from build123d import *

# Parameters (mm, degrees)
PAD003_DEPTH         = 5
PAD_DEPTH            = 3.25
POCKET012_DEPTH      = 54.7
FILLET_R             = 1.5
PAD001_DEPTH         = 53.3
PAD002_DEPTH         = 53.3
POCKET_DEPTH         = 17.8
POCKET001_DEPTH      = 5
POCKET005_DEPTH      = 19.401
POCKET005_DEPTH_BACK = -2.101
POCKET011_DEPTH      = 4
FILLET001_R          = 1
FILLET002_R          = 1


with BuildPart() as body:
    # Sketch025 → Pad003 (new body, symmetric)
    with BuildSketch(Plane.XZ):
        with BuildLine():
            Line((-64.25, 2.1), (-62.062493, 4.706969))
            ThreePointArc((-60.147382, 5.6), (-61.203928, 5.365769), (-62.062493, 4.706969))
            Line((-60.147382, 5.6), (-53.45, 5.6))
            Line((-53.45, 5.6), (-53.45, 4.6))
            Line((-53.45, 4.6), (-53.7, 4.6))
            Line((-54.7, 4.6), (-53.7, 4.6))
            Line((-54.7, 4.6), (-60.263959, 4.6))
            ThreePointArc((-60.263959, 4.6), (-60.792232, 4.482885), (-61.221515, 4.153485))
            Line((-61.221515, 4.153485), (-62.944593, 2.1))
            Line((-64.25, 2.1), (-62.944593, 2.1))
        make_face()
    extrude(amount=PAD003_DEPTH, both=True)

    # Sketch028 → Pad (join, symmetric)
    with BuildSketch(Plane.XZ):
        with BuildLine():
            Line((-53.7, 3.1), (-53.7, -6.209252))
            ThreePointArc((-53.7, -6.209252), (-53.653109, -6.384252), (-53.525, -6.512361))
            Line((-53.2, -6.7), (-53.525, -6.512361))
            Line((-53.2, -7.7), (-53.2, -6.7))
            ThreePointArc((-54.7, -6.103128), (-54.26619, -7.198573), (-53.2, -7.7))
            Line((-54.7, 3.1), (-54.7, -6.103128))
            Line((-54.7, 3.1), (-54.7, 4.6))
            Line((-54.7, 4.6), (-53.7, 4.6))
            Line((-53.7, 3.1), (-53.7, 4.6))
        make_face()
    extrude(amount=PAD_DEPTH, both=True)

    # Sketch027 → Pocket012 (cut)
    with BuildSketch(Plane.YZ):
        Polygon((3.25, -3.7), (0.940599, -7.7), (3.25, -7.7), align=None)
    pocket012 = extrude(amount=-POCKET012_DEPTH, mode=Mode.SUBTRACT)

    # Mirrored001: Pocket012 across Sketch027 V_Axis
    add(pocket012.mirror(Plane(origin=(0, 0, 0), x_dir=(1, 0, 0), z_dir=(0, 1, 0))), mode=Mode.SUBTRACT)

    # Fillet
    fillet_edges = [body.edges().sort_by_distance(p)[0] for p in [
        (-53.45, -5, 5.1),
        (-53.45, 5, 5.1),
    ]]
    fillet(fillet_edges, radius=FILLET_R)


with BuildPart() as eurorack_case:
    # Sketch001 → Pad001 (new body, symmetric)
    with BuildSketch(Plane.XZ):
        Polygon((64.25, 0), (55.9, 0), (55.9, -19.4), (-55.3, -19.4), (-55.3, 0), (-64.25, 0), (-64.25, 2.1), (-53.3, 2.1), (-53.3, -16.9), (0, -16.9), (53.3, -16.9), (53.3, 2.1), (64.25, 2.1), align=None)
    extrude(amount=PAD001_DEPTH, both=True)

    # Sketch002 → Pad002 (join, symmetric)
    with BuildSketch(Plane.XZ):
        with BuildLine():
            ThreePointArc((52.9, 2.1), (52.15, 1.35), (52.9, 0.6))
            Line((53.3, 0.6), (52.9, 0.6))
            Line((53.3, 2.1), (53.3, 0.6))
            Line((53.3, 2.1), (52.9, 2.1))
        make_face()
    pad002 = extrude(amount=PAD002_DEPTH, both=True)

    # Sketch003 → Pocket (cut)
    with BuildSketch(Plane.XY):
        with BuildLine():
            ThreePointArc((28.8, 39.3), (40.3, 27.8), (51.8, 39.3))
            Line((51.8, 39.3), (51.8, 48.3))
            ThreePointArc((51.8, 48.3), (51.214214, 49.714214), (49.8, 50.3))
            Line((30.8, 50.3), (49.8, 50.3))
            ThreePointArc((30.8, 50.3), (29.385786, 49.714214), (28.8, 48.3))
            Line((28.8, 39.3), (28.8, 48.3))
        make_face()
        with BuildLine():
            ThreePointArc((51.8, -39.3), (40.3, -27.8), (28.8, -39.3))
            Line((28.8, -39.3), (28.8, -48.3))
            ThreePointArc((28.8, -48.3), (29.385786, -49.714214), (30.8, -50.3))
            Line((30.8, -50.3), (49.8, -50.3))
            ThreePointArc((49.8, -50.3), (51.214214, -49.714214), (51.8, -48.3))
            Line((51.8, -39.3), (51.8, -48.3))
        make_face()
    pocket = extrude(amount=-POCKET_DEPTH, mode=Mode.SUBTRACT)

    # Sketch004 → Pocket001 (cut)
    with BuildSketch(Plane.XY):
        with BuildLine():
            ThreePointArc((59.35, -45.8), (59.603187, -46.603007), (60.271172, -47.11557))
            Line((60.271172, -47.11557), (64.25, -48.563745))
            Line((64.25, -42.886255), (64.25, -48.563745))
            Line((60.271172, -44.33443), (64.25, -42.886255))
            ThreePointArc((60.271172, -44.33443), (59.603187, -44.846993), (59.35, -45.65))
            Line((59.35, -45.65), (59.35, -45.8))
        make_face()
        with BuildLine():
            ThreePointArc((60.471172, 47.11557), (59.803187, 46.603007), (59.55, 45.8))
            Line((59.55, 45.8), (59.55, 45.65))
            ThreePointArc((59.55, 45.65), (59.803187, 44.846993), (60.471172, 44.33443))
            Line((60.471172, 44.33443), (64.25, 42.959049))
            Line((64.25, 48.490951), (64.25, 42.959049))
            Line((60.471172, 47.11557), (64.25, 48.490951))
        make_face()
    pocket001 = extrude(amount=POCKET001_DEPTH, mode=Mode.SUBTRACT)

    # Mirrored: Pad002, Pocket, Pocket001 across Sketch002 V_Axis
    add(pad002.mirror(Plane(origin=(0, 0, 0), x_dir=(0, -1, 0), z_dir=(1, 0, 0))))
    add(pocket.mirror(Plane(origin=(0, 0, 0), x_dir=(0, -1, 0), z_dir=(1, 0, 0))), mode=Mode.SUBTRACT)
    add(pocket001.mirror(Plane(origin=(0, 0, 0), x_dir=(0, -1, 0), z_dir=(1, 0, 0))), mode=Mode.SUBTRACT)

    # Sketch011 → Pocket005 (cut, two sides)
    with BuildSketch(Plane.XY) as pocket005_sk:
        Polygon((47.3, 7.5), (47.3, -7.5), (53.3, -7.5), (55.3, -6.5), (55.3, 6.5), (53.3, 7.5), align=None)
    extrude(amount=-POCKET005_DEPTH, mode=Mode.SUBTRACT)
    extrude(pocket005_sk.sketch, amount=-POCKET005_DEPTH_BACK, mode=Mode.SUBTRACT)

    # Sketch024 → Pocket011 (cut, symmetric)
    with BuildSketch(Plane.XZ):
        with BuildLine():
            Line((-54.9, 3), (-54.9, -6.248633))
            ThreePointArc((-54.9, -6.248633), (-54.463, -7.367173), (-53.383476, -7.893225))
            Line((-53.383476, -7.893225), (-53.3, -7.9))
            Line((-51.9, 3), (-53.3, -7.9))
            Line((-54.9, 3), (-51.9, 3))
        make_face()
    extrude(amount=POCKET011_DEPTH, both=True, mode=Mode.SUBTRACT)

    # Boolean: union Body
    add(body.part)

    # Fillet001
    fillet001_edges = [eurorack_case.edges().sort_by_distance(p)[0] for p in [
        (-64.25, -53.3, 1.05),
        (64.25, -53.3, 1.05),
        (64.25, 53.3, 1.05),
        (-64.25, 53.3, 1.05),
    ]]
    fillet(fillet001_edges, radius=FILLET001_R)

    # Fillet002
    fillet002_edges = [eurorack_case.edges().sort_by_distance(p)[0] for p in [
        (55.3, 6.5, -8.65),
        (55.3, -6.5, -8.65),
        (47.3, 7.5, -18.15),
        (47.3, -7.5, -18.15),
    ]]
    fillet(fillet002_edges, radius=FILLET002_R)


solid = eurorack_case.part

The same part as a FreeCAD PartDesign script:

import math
import FreeCAD as App
import Part
import Sketcher
Q = App.Units.Quantity


def edges_at(feature, points):
    """Names of the edges that pass closest to the given points."""
    edges = feature.Shape.Edges
    near = lambda p: min(range(len(edges)), key=lambda i: edges[i].distToShape(Part.Vertex(*p))[0])
    return sorted({f"Edge{near(p) + 1}" for p in points})


def add_polygon(sketch, points):
    """Adds a closed chain of lines whose ends are joined by coincident constraints."""
    first, n = sketch.GeometryCount, len(points)
    for a, b in zip(points, points[1:] + points[:1]):
        sketch.addGeometry(Part.LineSegment(App.Vector(*a, 0), App.Vector(*b, 0)), False)
    for i in range(n):
        sketch.addConstraint(Sketcher.Constraint("Coincident", first + i, 2, first + (i + 1) % n, 1))

doc = App.newDocument("Part")
body = doc.addObject("PartDesign::Body", "Body")

sketch1 = doc.addObject("Sketcher::SketchObject", "Sketch")
body.addObject(sketch1)
sketch1.AttachmentSupport = (doc.XZ_Plane, [""])
sketch1.MapMode = "FlatFace"
sketch1.addGeometry([
    Part.LineSegment(App.Vector(-62.1, 4.7, 0), App.Vector(-64.2, 2.1, 0)),
    Part.LineSegment(App.Vector(-64.2, 2.1, 0), App.Vector(-62.9, 2.1, 0)),
    Part.LineSegment(App.Vector(-62.9, 2.1, 0), App.Vector(-61.2, 4.2, 0)),
    Part.ArcOfCircle(Part.Circle(App.Vector(-60.3, 3.3, 0), App.Vector(0, 0, 1), 1.3), math.radians(90), math.radians(140)),
    Part.LineSegment(App.Vector(-60.3, 4.6, 0), App.Vector(-53.5, 4.6, 0)),
    Part.LineSegment(App.Vector(-53.5, 4.6, 0), App.Vector(-53.5, 5.6, 0)),
    Part.LineSegment(App.Vector(-53.5, 5.6, 0), App.Vector(-60.1, 5.6, 0)),
    Part.ArcOfCircle(Part.Circle(App.Vector(-60.1, 3.1, 0), App.Vector(0, 0, 1), 2.5), math.radians(90), math.radians(140)),
], False)
sketch1.addConstraint([
    Sketcher.Constraint("Coincident", 0, 2, 1, 1),
    Sketcher.Constraint("Coincident", 1, 2, 2, 1),
    Sketcher.Constraint("Tangent", 2, 2, 3, 2),
    Sketcher.Constraint("Tangent", 3, 1, 4, 1),
    Sketcher.Constraint("Coincident", 4, 2, 5, 1),
    Sketcher.Constraint("Coincident", 5, 2, 6, 1),
    Sketcher.Constraint("Tangent", 6, 2, 7, 1),
    Sketcher.Constraint("Tangent", 7, 2, 0, 1),
    Sketcher.Constraint("Horizontal", 1),
    Sketcher.Constraint("Horizontal", 4),
    Sketcher.Constraint("Vertical", 5),
    Sketcher.Constraint("Horizontal", 6),
    Sketcher.Constraint("Parallel", 0, 2),
    Sketcher.Constraint("DistanceY", 5, 1, 5, 2, 1.0),
    Sketcher.Constraint("Angle", 0, Q("-130.000004 deg")),
    Sketcher.Constraint("Radius", 3, 1.25),
    Sketcher.Constraint("DistanceY", -1, 1, 0, 2, 2.1),
    Sketcher.Constraint("DistanceY", -1, 1, 3, 1, 4.6),
    Sketcher.Constraint("DistanceX", 0, 2, -1, 1, 64.25),
    Sketcher.Constraint("DistanceX", 4, 2, -1, 1, 53.45),
    Sketcher.Constraint("DistanceY", 7, 3, 3, 3, 0.250002),
    Sketcher.Constraint("DistanceX", 4, 1, 4, 2, 6.813959),
])
pad1 = doc.addObject("PartDesign::Pad", "Pad")
body.addObject(pad1)
pad1.Profile = sketch1
pad1.Length = 10
pad1.Midplane = True

sketch2 = doc.addObject("Sketcher::SketchObject", "Sketch001")
body.addObject(sketch2)
sketch2.AttachmentSupport = (doc.XZ_Plane, [""])
sketch2.MapMode = "FlatFace"
sketch2.addGeometry([
    Part.LineSegment(App.Vector(-53.7, -6.21, 0), App.Vector(-53.7, 4.6, 0)),
    Part.LineSegment(App.Vector(-53.7, 4.6, 0), App.Vector(-54.7, 4.6, 0)),
    Part.LineSegment(App.Vector(-54.7, 4.6, 0), App.Vector(-54.7, -6.1, 0)),
    Part.ArcOfCircle(Part.Circle(App.Vector(-53.1, -6.1, 0), App.Vector(0, 0, 1), 1.6), math.radians(-180), math.radians(-94)),
    Part.LineSegment(App.Vector(-53.2, -7.7, 0), App.Vector(-53.2, -6.7, 0)),
    Part.LineSegment(App.Vector(-53.2, -6.7, 0), App.Vector(-53.52, -6.51, 0)),
    Part.ArcOfCircle(Part.Circle(App.Vector(-53.35, -6.21, 0), App.Vector(0, 0, 1), 0.35), math.radians(180), math.radians(240)),
], False)
sketch2.addConstraint([
    Sketcher.Constraint("Coincident", 0, 2, 1, 1),
    Sketcher.Constraint("Coincident", 1, 2, 2, 1),
    Sketcher.Constraint("Tangent", 2, 2, 3, 1),
    Sketcher.Constraint("Coincident", 3, 2, 4, 1),
    Sketcher.Constraint("Coincident", 4, 2, 5, 1),
    Sketcher.Constraint("Tangent", 5, 2, 6, 2),
    Sketcher.Constraint("Tangent", 6, 1, 0, 1),
    Sketcher.Constraint("Vertical", 0),
    Sketcher.Constraint("Horizontal", 1),
    Sketcher.Constraint("Vertical", 2),
    Sketcher.Constraint("Vertical", 4),
    Sketcher.Constraint("Equal", 1, 4),
    Sketcher.Constraint("Radius", 3, 1.600001),
    Sketcher.Constraint("DistanceX", 1, 2, 1, 1, 1.0),
    Sketcher.Constraint("Radius", 6, 0.35),
    Sketcher.Constraint("DistanceX", 3, 3, -1, 1, 53.099999),
    Sketcher.Constraint("DistanceY", -1, 1, 0, 2, 4.6),
    Sketcher.Constraint("DistanceX", 3, 2, -1, 1, 53.2),
    Sketcher.Constraint("DistanceY", 3, 2, -1, 1, 7.7),
    Sketcher.Constraint("DistanceX", 5, 2, -1, 1, 53.525),
])
pad2 = doc.addObject("PartDesign::Pad", "Pad001")
body.addObject(pad2)
pad2.Profile = sketch2
pad2.Length = 6.5
pad2.Midplane = True

sketch3 = doc.addObject("Sketcher::SketchObject", "Sketch002")
body.addObject(sketch3)
sketch3.AttachmentSupport = (doc.YZ_Plane, [""])
sketch3.MapMode = "FlatFace"
add_polygon(sketch3, [(3.2, -3.7), (0.9, -7.7), (3.2, -7.7)])
sketch3.addConstraint([
    Sketcher.Constraint("Horizontal", 1),
    Sketcher.Constraint("Vertical", 2),
    Sketcher.Constraint("DistanceY", 2, 1, 2, 2, 4.0),
    Sketcher.Constraint("Angle", 0, Q("-119.999999 deg")),
    Sketcher.Constraint("DistanceY", 0, 2, -1, 1, 7.7),
    Sketcher.Constraint("DistanceX", -1, 1, 1, 2, 3.25),
])
pocket1 = doc.addObject("PartDesign::Pocket", "Pocket")
body.addObject(pocket1)
pocket1.Profile = sketch3
pocket1.Length = 54.7
doc.recompute()

mirrored = doc.addObject("PartDesign::Mirrored", "Mirrored")
body.addObject(mirrored)
mirrored.Originals = [pocket1]
mirrored.MirrorPlane = (doc.XZ_Plane, [""])
body.Tip = mirrored
doc.recompute()

fillet = doc.addObject("PartDesign::Fillet", "Fillet")
body.addObject(fillet)
fillet.Base = (mirrored, edges_at(mirrored, [(-53.45, -5, 5.1), (-53.45, 5, 5.1)]))
fillet.Radius = 1.5
body2 = doc.addObject("PartDesign::Body", "Body001")

sketch4 = doc.addObject("Sketcher::SketchObject", "Sketch003")
body2.addObject(sketch4)
sketch4.AttachmentSupport = (doc.getObject("XZ_Plane001"), [""])
sketch4.MapMode = "FlatFace"
add_polygon(sketch4, [(55.9, 0), (64.2, 0), (64.2, 2.1), (53.3, 2.1), (53.3, -16.9), (-53.3, -16.9), (-53.3, 2.1), (-64.2, 2.1), (-64.2, 0), (-55.3, 0), (-55.3, -19.4), (55.9, -19.4)])
sketch4.addConstraint([
    Sketcher.Constraint("Horizontal", 0),
    Sketcher.Constraint("Vertical", 1),
    Sketcher.Constraint("Horizontal", 2),
    Sketcher.Constraint("Vertical", 3),
    Sketcher.Constraint("Horizontal", 4),
    Sketcher.Constraint("Vertical", 5),
    Sketcher.Constraint("Horizontal", 6),
    Sketcher.Constraint("Vertical", 7),
    Sketcher.Constraint("Horizontal", 8),
    Sketcher.Constraint("Vertical", 9),
    Sketcher.Constraint("Horizontal", 10),
    Sketcher.Constraint("Vertical", 11),
    Sketcher.Constraint("Symmetric", 0, 2, 7, 2, -1, 1),
    Sketcher.Constraint("Symmetric", 2, 2, 5, 2, -2),
    Sketcher.Constraint("PointOnObject", 0, 2, -1),
    Sketcher.Constraint("DistanceY", 3, 2, 3, 1, 19.0),
    Sketcher.Constraint("DistanceX", 4, 2, 4, 1, 106.6),
    Sketcher.Constraint("DistanceX", 10, 1, 10, 2, 111.2),
    Sketcher.Constraint("DistanceY", 1, 1, 1, 2, 2.1),
    Sketcher.Constraint("DistanceY", 9, 2, 9, 1, 19.4),
    Sketcher.Constraint("DistanceX", 8, 2, 5, 2, 2.0),
    Sketcher.Constraint("DistanceX", 0, 1, 0, 2, 8.35),
])
pad3 = doc.addObject("PartDesign::Pad", "Pad002")
body2.addObject(pad3)
pad3.Profile = sketch4
pad3.Length = 106.6
pad3.Midplane = True

sketch5 = doc.addObject("Sketcher::SketchObject", "Sketch004")
body2.addObject(sketch5)
sketch5.AttachmentSupport = (doc.getObject("XZ_Plane001"), [""])
sketch5.MapMode = "FlatFace"
sketch5.addGeometry([
    Part.ArcOfCircle(Part.Circle(App.Vector(52.9, 1.35, 0), App.Vector(0, 0, 1), 0.75), math.radians(90), math.radians(270)),
    Part.LineSegment(App.Vector(52.9, 0.6, 0), App.Vector(53.3, 0.6, 0)),
    Part.LineSegment(App.Vector(53.3, 0.6, 0), App.Vector(53.3, 2.1, 0)),
    Part.LineSegment(App.Vector(53.3, 2.1, 0), App.Vector(52.9, 2.1, 0)),
], False)
sketch5.addConstraint([
    Sketcher.Constraint("Tangent", 0, 2, 1, 1),
    Sketcher.Constraint("Coincident", 1, 2, 2, 1),
    Sketcher.Constraint("Coincident", 2, 2, 3, 1),
    Sketcher.Constraint("Tangent", 3, 2, 0, 1),
    Sketcher.Constraint("Horizontal", 1),
    Sketcher.Constraint("Vertical", 2),
    Sketcher.Constraint("Horizontal", 3),
    Sketcher.Constraint("Radius", 0, 0.75),
    Sketcher.Constraint("DistanceX", 1, 1, 1, 2, 0.4),
    Sketcher.Constraint("DistanceX", -1, 1, 0, 3, 52.9),
    Sketcher.Constraint("DistanceY", -1, 1, 0, 2, 0.6),
])
pad4 = doc.addObject("PartDesign::Pad", "Pad003")
body2.addObject(pad4)
pad4.Profile = sketch5
pad4.Length = 106.6
pad4.Midplane = True

sketch6 = doc.addObject("Sketcher::SketchObject", "Sketch005")
body2.addObject(sketch6)
sketch6.AttachmentSupport = (doc.getObject("XY_Plane001"), [""])
sketch6.MapMode = "FlatFace"
sketch6.addGeometry([
    Part.ArcOfCircle(Part.Circle(App.Vector(40.3, 39.3, 0), App.Vector(0, 0, 1), 11.5), math.radians(180), math.radians(360)),
    Part.LineSegment(App.Vector(51.8, 39.3, 0), App.Vector(51.8, 48.3, 0)),
    Part.ArcOfCircle(Part.Circle(App.Vector(49.8, 48.3, 0), App.Vector(0, 0, 1), 2), math.radians(0), math.radians(90)),
    Part.LineSegment(App.Vector(49.8, 50.3, 0), App.Vector(30.8, 50.3, 0)),
    Part.ArcOfCircle(Part.Circle(App.Vector(30.8, 48.3, 0), App.Vector(0, 0, 1), 2), math.radians(90), math.radians(180)),
    Part.LineSegment(App.Vector(28.8, 48.3, 0), App.Vector(28.8, 39.3, 0)),
    Part.ArcOfCircle(Part.Circle(App.Vector(40.3, -39.3, 0), App.Vector(0, 0, 1), 11.5), math.radians(0), math.radians(180)),
    Part.LineSegment(App.Vector(28.8, -39.3, 0), App.Vector(28.8, -48.3, 0)),
    Part.ArcOfCircle(Part.Circle(App.Vector(30.8, -48.3, 0), App.Vector(0, 0, 1), 2), math.radians(180), math.radians(270)),
    Part.LineSegment(App.Vector(30.8, -50.3, 0), App.Vector(49.8, -50.3, 0)),
    Part.ArcOfCircle(Part.Circle(App.Vector(49.8, -48.3, 0), App.Vector(0, 0, 1), 2), math.radians(-90), math.radians(0)),
    Part.LineSegment(App.Vector(51.8, -48.3, 0), App.Vector(51.8, -39.3, 0)),
], False)
sketch6.addConstraint([
    Sketcher.Constraint("Tangent", 0, 2, 1, 1),
    Sketcher.Constraint("Tangent", 1, 2, 2, 1),
    Sketcher.Constraint("Tangent", 2, 2, 3, 1),
    Sketcher.Constraint("Tangent", 3, 2, 4, 1),
    Sketcher.Constraint("Tangent", 4, 2, 5, 1),
    Sketcher.Constraint("Tangent", 5, 2, 0, 1),
    Sketcher.Constraint("Tangent", 6, 2, 7, 1),
    Sketcher.Constraint("Tangent", 7, 2, 8, 1),
    Sketcher.Constraint("Tangent", 8, 2, 9, 1),
    Sketcher.Constraint("Tangent", 9, 2, 10, 1),
    Sketcher.Constraint("Tangent", 10, 2, 11, 1),
    Sketcher.Constraint("Tangent", 11, 2, 6, 1),
    Sketcher.Constraint("Vertical", 1),
    Sketcher.Constraint("Horizontal", 3),
    Sketcher.Constraint("Vertical", 5),
    Sketcher.Constraint("Vertical", 7),
    Sketcher.Constraint("Horizontal", 9),
    Sketcher.Constraint("Vertical", 11),
    Sketcher.Constraint("Equal", 2, 4),
    Sketcher.Constraint("Equal", 0, 6),
    Sketcher.Constraint("Equal", 4, 8),
    Sketcher.Constraint("Equal", 8, 10),
    Sketcher.Constraint("Symmetric", 0, 3, 6, 3, -1),
    Sketcher.Constraint("Equal", 5, 7),
    Sketcher.Constraint("Radius", 2, 1.999999),
    Sketcher.Constraint("Radius", 0, 11.5),
    Sketcher.Constraint("DistanceY", 1, 1, 1, 2, 9.0),
    Sketcher.Constraint("DistanceX", -1, 1, 0, 3, 40.3),
    Sketcher.Constraint("DistanceY", -1, 1, 0, 3, 39.3),
])
pocket2 = doc.addObject("PartDesign::Pocket", "Pocket001")
body2.addObject(pocket2)
pocket2.Profile = sketch6
pocket2.Length = 17.8

sketch7 = doc.addObject("Sketcher::SketchObject", "Sketch006")
body2.addObject(sketch7)
sketch7.AttachmentSupport = (doc.getObject("XY_Plane001"), [""])
sketch7.MapMode = "FlatFace"
sketch7.addGeometry([
    Part.ArcOfCircle(Part.Circle(App.Vector(60.75, -45.8, 0), App.Vector(0, 0, 1), 1.4), math.radians(180), math.radians(250)),
    Part.LineSegment(App.Vector(60.27, -47.12, 0), App.Vector(64.25, -48.56, 0)),
    Part.LineSegment(App.Vector(64.25, -48.56, 0), App.Vector(64.25, -42.89, 0)),
    Part.LineSegment(App.Vector(64.25, -42.89, 0), App.Vector(60.27, -44.33, 0)),
    Part.ArcOfCircle(Part.Circle(App.Vector(60.75, -45.65, 0), App.Vector(0, 0, 1), 1.4), math.radians(110), math.radians(180)),
    Part.LineSegment(App.Vector(59.35, -45.65, 0), App.Vector(59.35, -45.8, 0)),
    Part.ArcOfCircle(Part.Circle(App.Vector(60.95, 45.8, 0), App.Vector(0, 0, 1), 1.4), math.radians(110), math.radians(180)),
    Part.LineSegment(App.Vector(59.55, 45.8, 0), App.Vector(59.55, 45.65, 0)),
    Part.ArcOfCircle(Part.Circle(App.Vector(60.95, 45.65, 0), App.Vector(0, 0, 1), 1.4), math.radians(180), math.radians(250)),
    Part.LineSegment(App.Vector(60.47, 44.33, 0), App.Vector(64.25, 42.96, 0)),
    Part.LineSegment(App.Vector(64.25, 42.96, 0), App.Vector(64.25, 48.49, 0)),
    Part.LineSegment(App.Vector(64.25, 48.49, 0), App.Vector(60.47, 47.12, 0)),
], False)
sketch7.addConstraint([
    Sketcher.Constraint("Tangent", 0, 2, 1, 1),
    Sketcher.Constraint("Coincident", 1, 2, 2, 1),
    Sketcher.Constraint("Coincident", 2, 2, 3, 1),
    Sketcher.Constraint("Tangent", 3, 2, 4, 1),
    Sketcher.Constraint("Tangent", 4, 2, 5, 1),
    Sketcher.Constraint("Tangent", 5, 2, 0, 1),
    Sketcher.Constraint("Tangent", 6, 2, 7, 1),
    Sketcher.Constraint("Tangent", 7, 2, 8, 1),
    Sketcher.Constraint("Tangent", 8, 2, 9, 1),
    Sketcher.Constraint("Coincident", 9, 2, 10, 1),
    Sketcher.Constraint("Coincident", 10, 2, 11, 1),
    Sketcher.Constraint("Tangent", 11, 2, 6, 1),
    Sketcher.Constraint("Vertical", 2),
    Sketcher.Constraint("Vertical", 5),
    Sketcher.Constraint("Vertical", 7),
    Sketcher.Constraint("Vertical", 10),
    Sketcher.Constraint("Equal", 0, 4),
    Sketcher.Constraint("Equal", 4, 6),
    Sketcher.Constraint("Equal", 6, 8),
    Sketcher.Constraint("Parallel", 1, 9),
    Sketcher.Constraint("Parallel", 3, 11),
    Sketcher.Constraint("Vertical", 0, 2, 3, 2),
    Sketcher.Constraint("Vertical", 2, 2, 9, 2),
    Sketcher.Constraint("Equal", 5, 7),
    Sketcher.Constraint("Radius", 0, 1.4),
    Sketcher.Constraint("Angle", 1, Q("-20.000001 deg")),
    Sketcher.Constraint("DistanceY", 5, 2, 5, 1, 0.15),
    Sketcher.Constraint("DistanceY", 0, 3, -1, 1, 45.8),
    Sketcher.Constraint("DistanceY", -1, 1, 6, 3, 45.8),
    Sketcher.Constraint("DistanceX", 4, 3, 6, 3, 0.2),
    Sketcher.Constraint("DistanceX", 0, 3, 1, 2, 3.5),
    Sketcher.Constraint("DistanceX", -1, 1, 0, 3, 60.75),
])
pocket3 = doc.addObject("PartDesign::Pocket", "Pocket002")
body2.addObject(pocket3)
pocket3.Profile = sketch7
pocket3.Length = 5
pocket3.Reversed = True
doc.recompute()

mirrored2 = doc.addObject("PartDesign::Mirrored", "Mirrored001")
body2.addObject(mirrored2)
mirrored2.Originals = [pad4, pocket2, pocket3]
mirrored2.MirrorPlane = (doc.getObject("YZ_Plane001"), [""])
body2.Tip = mirrored2

sketch8 = doc.addObject("Sketcher::SketchObject", "Sketch007")
body2.addObject(sketch8)
sketch8.AttachmentSupport = (doc.getObject("XY_Plane001"), [""])
sketch8.MapMode = "FlatFace"
add_polygon(sketch8, [(47.3, 7.5), (47.3, -7.5), (53.3, -7.5), (55.3, -6.5), (55.3, 6.5), (53.3, 7.5)])
sketch8.addConstraint([
    Sketcher.Constraint("Vertical", 0),
    Sketcher.Constraint("Horizontal", 1),
    Sketcher.Constraint("Vertical", 3),
    Sketcher.Constraint("Horizontal", 5),
    Sketcher.Constraint("Symmetric", 1, 2, 4, 2, -1),
    Sketcher.Constraint("Equal", 2, 4),
    Sketcher.Constraint("DistanceX", 1, 1, 1, 2, 6.0),
    Sketcher.Constraint("DistanceY", 0, 2, 0, 1, 15.0),
    Sketcher.Constraint("DistanceY", 3, 1, 3, 2, 13.0),
    Sketcher.Constraint("DistanceX", 1, 2, 2, 2, 2.0),
    Sketcher.Constraint("DistanceX", -1, 1, 0, 2, 47.3),
])
pocket4 = doc.addObject("PartDesign::Pocket", "Pocket003")
body2.addObject(pocket4)
pocket4.Profile = sketch8
pocket4.Type = "ThroughAll"
pocket4.Midplane = True

sketch9 = doc.addObject("Sketcher::SketchObject", "Sketch008")
body2.addObject(sketch9)
sketch9.AttachmentSupport = (doc.getObject("XZ_Plane001"), [""])
sketch9.MapMode = "FlatFace"
sketch9.addGeometry([
    Part.LineSegment(App.Vector(-54.9, 3, 0), App.Vector(-54.9, -6.25, 0)),
    Part.ArcOfCircle(Part.Circle(App.Vector(-53.25, -6.25, 0), App.Vector(0, 0, 1), 1.65), math.radians(180), math.radians(265)),
    Part.LineSegment(App.Vector(-53.38, -7.89, 0), App.Vector(-53.3, -7.9, 0)),
    Part.LineSegment(App.Vector(-53.3, -7.9, 0), App.Vector(-51.9, 3, 0)),
    Part.LineSegment(App.Vector(-51.9, 3, 0), App.Vector(-54.9, 3, 0)),
], False)
sketch9.addConstraint([
    Sketcher.Constraint("Tangent", 0, 2, 1, 1),
    Sketcher.Constraint("Tangent", 1, 2, 2, 1),
    Sketcher.Constraint("Coincident", 2, 2, 3, 1),
    Sketcher.Constraint("Coincident", 3, 2, 4, 1),
    Sketcher.Constraint("Coincident", 4, 2, 0, 1),
    Sketcher.Constraint("Vertical", 0),
    Sketcher.Constraint("Horizontal", 4),
    Sketcher.Constraint("DistanceX", 4, 2, 4, 1, 3.0),
    Sketcher.Constraint("Radius", 1, 1.649999),
    Sketcher.Constraint("DistanceY", -1, 1, 3, 2, 3.0),
    Sketcher.Constraint("DistanceX", 0, 2, -1, 1, 54.9),
    Sketcher.Constraint("DistanceX", 2, 2, -1, 1, 53.3),
    Sketcher.Constraint("DistanceY", 2, 2, -1, 1, 7.9),
    Sketcher.Constraint("Angle", 2, Q("-4.640015 deg")),
])
pocket5 = doc.addObject("PartDesign::Pocket", "Pocket004")
body2.addObject(pocket5)
pocket5.Profile = sketch9
pocket5.Length = 8
pocket5.Midplane = True
doc.recompute()

boolean = doc.addObject("PartDesign::Boolean", "Boolean")
body2.addObject(boolean)
boolean.Type = "Fuse"
boolean.addObjects([body])
doc.recompute()

fillet2 = doc.addObject("PartDesign::Fillet", "Fillet001")
body2.addObject(fillet2)
fillet2.Base = (boolean, edges_at(boolean, [
    (-64.25, -53.3, 1.05),
    (64.25, -53.3, 1.05),
    (64.25, 53.3, 1.05),
    (-64.25, 53.3, 1.05),
]))
fillet2.Radius = 1
doc.recompute()

fillet3 = doc.addObject("PartDesign::Fillet", "Fillet002")
body2.addObject(fillet3)
fillet3.Base = (fillet2, edges_at(fillet2, [
    (55.3, 6.5, -8.65),
    (55.3, -6.5, -8.65),
    (47.3, 7.5, -18.15),
    (47.3, -7.5, -18.15),
]))
fillet3.Radius = 1

doc.recompute()
